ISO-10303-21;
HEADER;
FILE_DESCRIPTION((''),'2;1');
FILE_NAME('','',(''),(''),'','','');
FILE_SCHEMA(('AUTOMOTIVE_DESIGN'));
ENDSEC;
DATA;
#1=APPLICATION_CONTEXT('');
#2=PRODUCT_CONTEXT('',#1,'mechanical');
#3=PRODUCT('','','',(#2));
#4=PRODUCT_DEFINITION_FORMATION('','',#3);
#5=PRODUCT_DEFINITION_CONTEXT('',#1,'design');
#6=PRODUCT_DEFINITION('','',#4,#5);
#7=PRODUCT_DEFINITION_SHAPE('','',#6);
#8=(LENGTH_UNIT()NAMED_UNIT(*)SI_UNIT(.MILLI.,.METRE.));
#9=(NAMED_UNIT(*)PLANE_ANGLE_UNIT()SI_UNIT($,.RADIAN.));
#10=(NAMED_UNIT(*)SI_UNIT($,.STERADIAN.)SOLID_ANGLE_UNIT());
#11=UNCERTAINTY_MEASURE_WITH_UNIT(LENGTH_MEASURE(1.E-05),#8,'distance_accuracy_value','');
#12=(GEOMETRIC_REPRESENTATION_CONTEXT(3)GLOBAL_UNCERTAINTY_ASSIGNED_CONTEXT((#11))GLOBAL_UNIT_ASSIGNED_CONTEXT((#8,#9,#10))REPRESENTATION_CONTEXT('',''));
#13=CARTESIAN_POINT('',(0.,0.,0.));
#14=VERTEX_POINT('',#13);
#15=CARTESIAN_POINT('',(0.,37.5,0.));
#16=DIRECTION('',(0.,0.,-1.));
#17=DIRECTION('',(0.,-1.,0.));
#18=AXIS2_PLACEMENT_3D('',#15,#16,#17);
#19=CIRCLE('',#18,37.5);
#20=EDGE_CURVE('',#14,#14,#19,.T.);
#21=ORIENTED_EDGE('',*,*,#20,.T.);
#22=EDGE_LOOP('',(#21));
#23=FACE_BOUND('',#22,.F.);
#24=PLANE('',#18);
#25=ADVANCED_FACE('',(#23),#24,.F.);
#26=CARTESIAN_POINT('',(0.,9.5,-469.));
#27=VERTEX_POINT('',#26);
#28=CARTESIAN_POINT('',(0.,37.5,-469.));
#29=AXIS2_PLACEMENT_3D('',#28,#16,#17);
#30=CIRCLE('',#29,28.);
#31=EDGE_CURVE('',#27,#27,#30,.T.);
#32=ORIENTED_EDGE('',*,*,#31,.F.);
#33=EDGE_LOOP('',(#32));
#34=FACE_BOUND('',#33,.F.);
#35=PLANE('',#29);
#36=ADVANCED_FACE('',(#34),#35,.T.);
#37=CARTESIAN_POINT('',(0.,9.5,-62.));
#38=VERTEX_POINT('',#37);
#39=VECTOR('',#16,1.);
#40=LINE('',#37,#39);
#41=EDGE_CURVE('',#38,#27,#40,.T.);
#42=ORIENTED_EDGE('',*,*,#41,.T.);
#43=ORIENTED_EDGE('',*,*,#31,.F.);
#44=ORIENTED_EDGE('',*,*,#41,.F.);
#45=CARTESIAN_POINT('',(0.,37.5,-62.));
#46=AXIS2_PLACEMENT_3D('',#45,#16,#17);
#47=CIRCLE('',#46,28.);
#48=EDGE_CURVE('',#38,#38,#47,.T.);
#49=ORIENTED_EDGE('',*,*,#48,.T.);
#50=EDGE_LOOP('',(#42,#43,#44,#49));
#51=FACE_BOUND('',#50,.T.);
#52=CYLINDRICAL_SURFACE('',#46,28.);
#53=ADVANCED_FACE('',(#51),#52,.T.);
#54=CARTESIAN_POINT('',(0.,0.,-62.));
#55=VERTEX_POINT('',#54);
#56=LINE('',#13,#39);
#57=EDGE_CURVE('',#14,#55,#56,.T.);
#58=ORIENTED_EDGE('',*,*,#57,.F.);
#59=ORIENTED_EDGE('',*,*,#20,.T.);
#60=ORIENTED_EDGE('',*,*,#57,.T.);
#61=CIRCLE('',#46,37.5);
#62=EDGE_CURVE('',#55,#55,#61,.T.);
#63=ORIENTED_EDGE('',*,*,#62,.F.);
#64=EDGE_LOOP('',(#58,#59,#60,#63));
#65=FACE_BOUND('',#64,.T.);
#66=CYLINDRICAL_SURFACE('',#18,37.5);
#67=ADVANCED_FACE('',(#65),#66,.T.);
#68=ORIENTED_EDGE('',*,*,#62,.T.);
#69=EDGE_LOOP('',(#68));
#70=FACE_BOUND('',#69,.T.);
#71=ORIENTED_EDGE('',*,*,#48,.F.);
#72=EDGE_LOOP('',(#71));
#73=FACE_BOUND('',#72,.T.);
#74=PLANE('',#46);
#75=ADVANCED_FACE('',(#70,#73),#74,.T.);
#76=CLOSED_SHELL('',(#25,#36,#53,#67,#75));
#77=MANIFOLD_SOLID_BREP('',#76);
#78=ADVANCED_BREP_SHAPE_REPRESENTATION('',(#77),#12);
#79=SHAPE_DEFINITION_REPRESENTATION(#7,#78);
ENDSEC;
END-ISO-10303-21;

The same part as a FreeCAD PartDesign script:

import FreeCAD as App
import Part
import Sketcher
from FreeCAD import Vector
Q = App.Units.Quantity

doc = App.newDocument("Part")
params = doc.addObject("Spreadsheet::Sheet", "Params")
for row, (alias, value) in enumerate([
    ("sketch1_width", "28 mm"),
    ("sketch1_height", "62 mm"),
    ("sketch1_height2", "469 mm"),
    ("sketch1_width2", "37.5 mm"),
    ("revolution_angle", "360 deg"),
], start=1):
    params.set(f"A{row}", alias)
    params.set(f"B{row}", "=" + value)
    params.setAlias(f"B{row}", alias)

body = doc.addObject("PartDesign::Body", "Body")

sketch1 = body.newObject("Sketcher::SketchObject", "Sketch")
sketch1.AttachmentSupport = (doc.getObject("YZ_Plane"), [""])
sketch1.MapMode = "FlatFace"
sketch1.addGeometry(Part.LineSegment(Vector(38, 0, 0), Vector(0, 0, 0)), False)
sketch1.addGeometry(Part.LineSegment(Vector(0, 0, 0), Vector(0, -62, 0)), False)
sketch1.addGeometry(Part.LineSegment(Vector(0, -62, 0), Vector(10, -62, 0)), False)
sketch1.addGeometry(Part.LineSegment(Vector(10, -62, 0), Vector(10, -469, 0)), False)
sketch1.addGeometry(Part.LineSegment(Vector(10, -469, 0), Vector(38, -469, 0)), False)
sketch1.addGeometry(Part.LineSegment(Vector(38, -469, 0), Vector(38, 0, 0)), False)
sketch1.addGeometry(Part.LineSegment(Vector(38, 0, 0), Vector(38, -469, 0)), True)
sketch1.addConstraint(Sketcher.Constraint("Coincident", 0, 2, 1, 1))
sketch1.addConstraint(Sketcher.Constraint("Coincident", 1, 2, 2, 1))
sketch1.addConstraint(Sketcher.Constraint("Coincident", 2, 2, 3, 1))
sketch1.addConstraint(Sketcher.Constraint("Coincident", 3, 2, 4, 1))
sketch1.addConstraint(Sketcher.Constraint("Coincident", 4, 2, 5, 1))
sketch1.addConstraint(Sketcher.Constraint("Coincident", 5, 2, 0, 1))
sketch1.addConstraint(Sketcher.Constraint("Horizontal", 0))
sketch1.addConstraint(Sketcher.Constraint("Vertical", 1))
sketch1.addConstraint(Sketcher.Constraint("Horizontal", 2))
sketch1.addConstraint(Sketcher.Constraint("Vertical", 3))
sketch1.addConstraint(Sketcher.Constraint("Horizontal", 4))
sketch1.addConstraint(Sketcher.Constraint("Vertical", 5))
sketch1.addConstraint(Sketcher.Constraint("Vertical", 6))
sketch1.addConstraint(Sketcher.Constraint("Coincident", 0, 2, -1, 1))
sketch1.addConstraint(Sketcher.Constraint("Coincident", 6, 1, 5, 2))
sketch1.addConstraint(Sketcher.Constraint("Horizontal", 3, 2, 6, 2))
sketch1.addConstraint(Sketcher.Constraint("DistanceX", 4, 1, 4, 2, Q("28 mm")))
sketch1.addConstraint(Sketcher.Constraint("DistanceY", 1, 2, 1, 1, Q("62 mm")))
sketch1.addConstraint(Sketcher.Constraint("DistanceY", 5, 1, 5, 2, Q("469 mm")))
sketch1.addConstraint(Sketcher.Constraint("DistanceX", 0, 2, 0, 1, Q("37.5 mm")))
sketch1.setExpression("Constraints[16]", "Params.sketch1_width")
sketch1.setExpression("Constraints[17]", "Params.sketch1_height")
sketch1.setExpression("Constraints[18]", "Params.sketch1_height2")
sketch1.setExpression("Constraints[19]", "Params.sketch1_width2")
revolution = body.newObject("PartDesign::Revolution", "Revolution")
revolution.Profile = sketch1
revolution.ReferenceAxis = (sketch1, ["Axis0"])
revolution.setExpression("Angle", "Params.revolution_angle")

doc.recompute()
